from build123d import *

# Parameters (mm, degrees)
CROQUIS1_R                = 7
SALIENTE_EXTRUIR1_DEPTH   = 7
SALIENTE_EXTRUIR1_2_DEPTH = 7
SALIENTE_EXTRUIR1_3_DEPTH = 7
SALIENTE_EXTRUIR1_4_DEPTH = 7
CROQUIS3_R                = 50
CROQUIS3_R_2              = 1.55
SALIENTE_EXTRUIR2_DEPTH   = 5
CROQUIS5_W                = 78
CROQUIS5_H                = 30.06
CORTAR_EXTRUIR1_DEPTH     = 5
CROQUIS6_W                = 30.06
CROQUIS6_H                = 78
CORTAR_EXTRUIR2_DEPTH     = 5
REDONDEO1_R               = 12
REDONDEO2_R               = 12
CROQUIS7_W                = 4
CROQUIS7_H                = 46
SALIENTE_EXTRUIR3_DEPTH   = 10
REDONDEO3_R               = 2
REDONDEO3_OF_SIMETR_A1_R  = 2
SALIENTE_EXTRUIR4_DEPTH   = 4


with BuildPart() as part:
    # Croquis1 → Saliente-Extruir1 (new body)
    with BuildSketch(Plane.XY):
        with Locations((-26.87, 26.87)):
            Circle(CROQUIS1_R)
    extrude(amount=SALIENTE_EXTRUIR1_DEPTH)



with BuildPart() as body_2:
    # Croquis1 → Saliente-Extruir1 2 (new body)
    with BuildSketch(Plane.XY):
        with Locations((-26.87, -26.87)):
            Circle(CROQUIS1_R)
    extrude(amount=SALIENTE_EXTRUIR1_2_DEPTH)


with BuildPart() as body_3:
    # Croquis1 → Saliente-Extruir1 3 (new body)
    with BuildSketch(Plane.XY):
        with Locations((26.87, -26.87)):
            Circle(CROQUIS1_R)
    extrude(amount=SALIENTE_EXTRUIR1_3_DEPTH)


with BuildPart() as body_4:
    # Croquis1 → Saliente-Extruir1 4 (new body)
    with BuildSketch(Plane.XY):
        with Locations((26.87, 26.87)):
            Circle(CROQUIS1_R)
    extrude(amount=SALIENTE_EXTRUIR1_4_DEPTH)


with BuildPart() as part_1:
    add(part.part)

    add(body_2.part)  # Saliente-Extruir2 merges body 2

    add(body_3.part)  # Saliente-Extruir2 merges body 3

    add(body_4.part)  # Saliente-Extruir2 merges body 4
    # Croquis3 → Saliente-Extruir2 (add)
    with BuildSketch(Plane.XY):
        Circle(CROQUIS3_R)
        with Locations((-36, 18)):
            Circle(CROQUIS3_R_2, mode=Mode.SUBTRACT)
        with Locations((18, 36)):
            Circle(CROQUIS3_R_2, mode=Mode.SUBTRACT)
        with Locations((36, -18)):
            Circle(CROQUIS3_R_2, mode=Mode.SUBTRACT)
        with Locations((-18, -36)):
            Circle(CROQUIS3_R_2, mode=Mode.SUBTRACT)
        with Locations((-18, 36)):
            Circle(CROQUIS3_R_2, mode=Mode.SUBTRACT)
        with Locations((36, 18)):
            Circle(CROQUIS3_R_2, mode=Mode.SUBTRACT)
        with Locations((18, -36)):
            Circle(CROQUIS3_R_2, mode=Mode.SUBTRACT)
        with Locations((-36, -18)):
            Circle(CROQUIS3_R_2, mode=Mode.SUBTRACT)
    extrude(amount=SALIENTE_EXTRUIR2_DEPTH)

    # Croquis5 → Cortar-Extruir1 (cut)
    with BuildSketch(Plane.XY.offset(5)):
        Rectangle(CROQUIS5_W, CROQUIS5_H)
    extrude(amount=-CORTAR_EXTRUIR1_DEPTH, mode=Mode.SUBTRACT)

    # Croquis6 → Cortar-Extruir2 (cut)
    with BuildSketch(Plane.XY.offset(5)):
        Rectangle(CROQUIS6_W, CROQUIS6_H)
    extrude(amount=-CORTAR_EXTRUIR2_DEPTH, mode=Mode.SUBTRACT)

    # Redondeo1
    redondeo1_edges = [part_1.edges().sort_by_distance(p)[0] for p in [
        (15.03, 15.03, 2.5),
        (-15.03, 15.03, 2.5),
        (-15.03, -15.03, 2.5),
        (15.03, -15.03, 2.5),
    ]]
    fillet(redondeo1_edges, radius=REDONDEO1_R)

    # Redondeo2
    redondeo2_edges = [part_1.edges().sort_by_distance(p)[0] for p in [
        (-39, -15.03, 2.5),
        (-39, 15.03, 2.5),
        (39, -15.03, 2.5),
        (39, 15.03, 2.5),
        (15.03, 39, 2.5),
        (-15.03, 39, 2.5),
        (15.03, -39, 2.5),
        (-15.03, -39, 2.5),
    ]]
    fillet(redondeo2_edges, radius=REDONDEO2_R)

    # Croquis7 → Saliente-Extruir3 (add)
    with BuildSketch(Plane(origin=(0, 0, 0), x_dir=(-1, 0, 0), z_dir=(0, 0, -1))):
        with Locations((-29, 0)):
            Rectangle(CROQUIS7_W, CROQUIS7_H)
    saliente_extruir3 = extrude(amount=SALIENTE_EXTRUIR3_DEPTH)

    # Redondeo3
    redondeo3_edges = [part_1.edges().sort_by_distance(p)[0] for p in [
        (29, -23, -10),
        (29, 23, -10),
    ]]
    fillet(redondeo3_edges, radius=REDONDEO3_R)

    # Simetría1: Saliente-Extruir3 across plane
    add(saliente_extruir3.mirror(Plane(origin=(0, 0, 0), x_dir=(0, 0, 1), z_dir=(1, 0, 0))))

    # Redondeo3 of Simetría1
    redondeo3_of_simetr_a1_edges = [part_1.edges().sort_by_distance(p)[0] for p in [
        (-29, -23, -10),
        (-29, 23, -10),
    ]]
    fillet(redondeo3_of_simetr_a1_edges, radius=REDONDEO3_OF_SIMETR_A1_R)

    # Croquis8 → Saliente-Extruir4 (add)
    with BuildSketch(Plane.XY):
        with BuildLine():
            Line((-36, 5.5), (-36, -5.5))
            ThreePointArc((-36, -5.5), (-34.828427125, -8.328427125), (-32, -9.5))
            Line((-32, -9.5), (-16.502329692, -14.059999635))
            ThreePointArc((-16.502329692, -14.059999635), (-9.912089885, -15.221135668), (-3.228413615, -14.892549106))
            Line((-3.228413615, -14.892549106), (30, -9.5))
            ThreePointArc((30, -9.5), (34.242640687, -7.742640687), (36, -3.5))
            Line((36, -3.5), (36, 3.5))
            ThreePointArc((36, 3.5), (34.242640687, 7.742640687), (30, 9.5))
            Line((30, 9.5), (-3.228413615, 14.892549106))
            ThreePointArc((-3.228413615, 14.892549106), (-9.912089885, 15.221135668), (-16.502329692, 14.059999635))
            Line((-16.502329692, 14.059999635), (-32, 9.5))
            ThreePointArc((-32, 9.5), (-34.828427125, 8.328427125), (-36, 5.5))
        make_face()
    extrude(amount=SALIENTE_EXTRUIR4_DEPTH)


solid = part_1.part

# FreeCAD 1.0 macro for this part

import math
import FreeCAD as App
import Part
import Sketcher
Q = App.Units.Quantity


def edges_at(feature, points):
    """Names of the edges that pass closest to the given points."""
    edges = feature.Shape.Edges
    near = lambda p: min(range(len(edges)), key=lambda i: edges[i].distToShape(Part.Vertex(*p))[0])
    return sorted({f"Edge{near(p) + 1}" for p in points})


def add_polygon(sketch, points):
    """Adds a closed chain of lines whose ends are joined by coincident constraints."""
    first, n = sketch.GeometryCount, len(points)
    for a, b in zip(points, points[1:] + points[:1]):
        sketch.addGeometry(Part.LineSegment(App.Vector(*a, 0), App.Vector(*b, 0)), False)
    for i in range(n):
        sketch.addConstraint(Sketcher.Constraint("Coincident", first + i, 2, first + (i + 1) % n, 1))

doc = App.newDocument("Part")
params = doc.addObject("Spreadsheet::Sheet", "Params")
for row, (alias, value) in enumerate([
    ("sketch1_diameter", "14 mm"),
    ("pad1_length", "7 mm"),
    ("sketch2_diameter", "14 mm"),
    ("pad2_length", "7 mm"),
    ("sketch3_diameter", "14 mm"),
    ("pad3_length", "7 mm"),
    ("sketch4_diameter", "14 mm"),
    ("pad4_length", "7 mm"),
    ("sketch5_diameter", "100 mm"),
    ("sketch5_diameter2", "3.1 mm"),
    ("pad5_length", "5 mm"),
    ("sketch6_width", "78 mm"),
    ("sketch6_height", "30.06 mm"),
    ("pocket1_length", "5 mm"),
    ("sketch7_height", "78 mm"),
    ("sketch7_width", "30.06 mm"),
    ("pocket2_length", "5 mm"),
    ("fillet_radius", "12 mm"),
    ("fillet2_radius", "12 mm"),
    ("sketch8_width", "4 mm"),
    ("sketch8_height", "46 mm"),
    ("pad6_length", "10 mm"),
    ("fillet3_radius", "2 mm"),
    ("fillet4_radius", "2 mm"),
    ("sketch9_radius", "4 mm"),
    ("sketch9_radius2", "30 mm"),
    ("sketch9_radius3", "6 mm"),
    ("sketch9_height", "11 mm"),
    ("pad7_length", "4 mm"),
], start=1):
    params.set(f"A{row}", alias)
    params.set(f"B{row}", "=" + value)
    params.setAlias(f"B{row}", alias)

body = doc.addObject("PartDesign::Body", "Body")

sketch1 = body.newObject("Sketcher::SketchObject", "Sketch")
sketch1.AttachmentSupport = (doc.getObject("XY_Plane"), [""])
sketch1.MapMode = "FlatFace"
sketch1.addGeometry(Part.Circle(App.Vector(-26.87, 26.87, 0), App.Vector(0, 0, 1), 7), False)
sketch1.addConstraint(Sketcher.Constraint("Diameter", 0, Q("14 mm")))
sketch1.addConstraint(Sketcher.Constraint("DistanceX", 0, 3, -1, 1, Q("26.87 mm")))
sketch1.addConstraint(Sketcher.Constraint("DistanceY", -1, 1, 0, 3, Q("26.87 mm")))
sketch1.setExpression("Constraints[0]", "Params.sketch1_diameter")
pad1 = body.newObject("PartDesign::Pad", "Pad")
pad1.Profile = sketch1
pad1.setExpression("Length", "Params.pad1_length")
body2 = doc.addObject("PartDesign::Body", "Body001")

sketch2 = body2.newObject("Sketcher::SketchObject", "Sketch001")
sketch2.AttachmentSupport = (doc.getObject("XY_Plane001"), [""])
sketch2.MapMode = "FlatFace"
sketch2.addGeometry(Part.Circle(App.Vector(-26.87, -26.87, 0), App.Vector(0, 0, 1), 7), False)
sketch2.addConstraint(Sketcher.Constraint("Diameter", 0, Q("14 mm")))
sketch2.addConstraint(Sketcher.Constraint("DistanceX", 0, 3, -1, 1, Q("26.87 mm")))
sketch2.addConstraint(Sketcher.Constraint("DistanceY", 0, 3, -1, 1, Q("26.87 mm")))
sketch2.setExpression("Constraints[0]", "Params.sketch2_diameter")
pad2 = body2.newObject("PartDesign::Pad", "Pad001")
pad2.Profile = sketch2
pad2.setExpression("Length", "Params.pad2_length")
body3 = doc.addObject("PartDesign::Body", "Body002")

sketch3 = body3.newObject("Sketcher::SketchObject", "Sketch002")
sketch3.AttachmentSupport = (doc.getObject("XY_Plane002"), [""])
sketch3.MapMode = "FlatFace"
sketch3.addGeometry(Part.Circle(App.Vector(26.87, -26.87, 0), App.Vector(0, 0, 1), 7), False)
sketch3.addConstraint(Sketcher.Constraint("Diameter", 0, Q("14 mm")))
sketch3.addConstraint(Sketcher.Constraint("DistanceX", -1, 1, 0, 3, Q("26.87 mm")))
sketch3.addConstraint(Sketcher.Constraint("DistanceY", 0, 3, -1, 1, Q("26.87 mm")))
sketch3.setExpression("Constraints[0]", "Params.sketch3_diameter")
pad3 = body3.newObject("PartDesign::Pad", "Pad002")
pad3.Profile = sketch3
pad3.setExpression("Length", "Params.pad3_length")
body4 = doc.addObject("PartDesign::Body", "Body003")

sketch4 = body4.newObject("Sketcher::SketchObject", "Sketch003")
sketch4.AttachmentSupport = (doc.getObject("XY_Plane003"), [""])
sketch4.MapMode = "FlatFace"
sketch4.addGeometry(Part.Circle(App.Vector(26.87, 26.87, 0), App.Vector(0, 0, 1), 7), False)
sketch4.addConstraint(Sketcher.Constraint("Diameter", 0, Q("14 mm")))
sketch4.addConstraint(Sketcher.Constraint("DistanceX", -1, 1, 0, 3, Q("26.87 mm")))
sketch4.addConstraint(Sketcher.Constraint("DistanceY", -1, 1, 0, 3, Q("26.87 mm")))
sketch4.setExpression("Constraints[0]", "Params.sketch4_diameter")
pad4 = body4.newObject("PartDesign::Pad", "Pad003")
pad4.Profile = sketch4
pad4.setExpression("Length", "Params.pad4_length")
body.AllowCompound = True
doc.recompute()

boolean = body.newObject("PartDesign::Boolean", "Boolean")
boolean.Type = "Fuse"
boolean.addObjects([body2])
doc.recompute()

boolean2 = body.newObject("PartDesign::Boolean", "Boolean001")
boolean2.Type = "Fuse"
boolean2.addObjects([body3])
doc.recompute()

boolean3 = body.newObject("PartDesign::Boolean", "Boolean002")
boolean3.Type = "Fuse"
boolean3.addObjects([body4])

sketch5 = body.newObject("Sketcher::SketchObject", "Sketch004")
sketch5.AttachmentSupport = (doc.getObject("XY_Plane"), [""])
sketch5.MapMode = "FlatFace"
sketch5.addGeometry(Part.Circle(App.Vector(0, 0, 0), App.Vector(0, 0, 1), 50), False)
sketch5.addGeometry(Part.Circle(App.Vector(-18, -36, 0), App.Vector(0, 0, 1), 1.55), False)
sketch5.addGeometry(Part.Circle(App.Vector(-36, -18, 0), App.Vector(0, 0, 1), 1.55), False)
sketch5.addGeometry(Part.Circle(App.Vector(18, -36, 0), App.Vector(0, 0, 1), 1.55), False)
sketch5.addGeometry(Part.Circle(App.Vector(36, -18, 0), App.Vector(0, 0, 1), 1.55), False)
sketch5.addGeometry(Part.Circle(App.Vector(-36, 18, 0), App.Vector(0, 0, 1), 1.55), False)
sketch5.addGeometry(Part.Circle(App.Vector(-18, 36, 0), App.Vector(0, 0, 1), 1.55), False)
sketch5.addGeometry(Part.Circle(App.Vector(36, 18, 0), App.Vector(0, 0, 1), 1.55), False)
sketch5.addGeometry(Part.Circle(App.Vector(18, 36, 0), App.Vector(0, 0, 1), 1.55), False)
sketch5.addConstraint(Sketcher.Constraint("Coincident", 0, 3, -1, 1))
sketch5.addConstraint(Sketcher.Constraint("Equal", 1, 2))
sketch5.addConstraint(Sketcher.Constraint("Equal", 2, 3))
sketch5.addConstraint(Sketcher.Constraint("Equal", 3, 4))
sketch5.addConstraint(Sketcher.Constraint("Equal", 4, 5))
sketch5.addConstraint(Sketcher.Constraint("Equal", 5, 6))
sketch5.addConstraint(Sketcher.Constraint("Equal", 6, 7))
sketch5.addConstraint(Sketcher.Constraint("Equal", 7, 8))
sketch5.addConstraint(Sketcher.Constraint("Symmetric", 4, 3, 5, 3, -1, 1))
sketch5.addConstraint(Sketcher.Constraint("Symmetric", 3, 3, 6, 3, -1, 1))
sketch5.addConstraint(Sketcher.Constraint("Symmetric", 2, 3, 7, 3, -1, 1))
sketch5.addConstraint(Sketcher.Constraint("Symmetric", 1, 3, 8, 3, -1, 1))
sketch5.addConstraint(Sketcher.Constraint("Symmetric", 1, 3, 3, 3, -2))
sketch5.addConstraint(Sketcher.Constraint("Symmetric", 2, 3, 4, 3, -2))
sketch5.addConstraint(Sketcher.Constraint("Diameter", 0, Q("100 mm")))
sketch5.addConstraint(Sketcher.Constraint("Diameter", 1, Q("3.1 mm")))
sketch5.addConstraint(Sketcher.Constraint("DistanceX", 1, 3, -1, 1, Q("18 mm")))
sketch5.addConstraint(Sketcher.Constraint("DistanceY", 1, 3, -1, 1, Q("36 mm")))
sketch5.addConstraint(Sketcher.Constraint("DistanceX", 2, 3, -1, 1, Q("36 mm")))
sketch5.addConstraint(Sketcher.Constraint("DistanceY", 2, 3, -1, 1, Q("18 mm")))
sketch5.setExpression("Constraints[14]", "Params.sketch5_diameter")
sketch5.setExpression("Constraints[15]", "Params.sketch5_diameter2")
pad5 = body.newObject("PartDesign::Pad", "Pad004")
pad5.Profile = sketch5
pad5.setExpression("Length", "Params.pad5_length")

sketch6 = body.newObject("Sketcher::SketchObject", "Sketch005")
sketch6.AttachmentSupport = (doc.getObject("XY_Plane"), [""])
sketch6.MapMode = "FlatFace"
sketch6.AttachmentOffset = App.Placement(App.Vector(0, 0, 5), App.Rotation())
add_polygon(sketch6, [(-39, 15.03), (-39, -15.03), (39, -15.03), (39, 15.03)])
sketch6.addConstraint(Sketcher.Constraint("Vertical", 0))
sketch6.addConstraint(Sketcher.Constraint("Horizontal", 1))
sketch6.addConstraint(Sketcher.Constraint("Vertical", 2))
sketch6.addConstraint(Sketcher.Constraint("Horizontal", 3))
sketch6.addConstraint(Sketcher.Constraint("Symmetric", 0, 2, 2, 2, -1, 1))
sketch6.addConstraint(Sketcher.Constraint("DistanceX", 1, 1, 1, 2, Q("78 mm")))
sketch6.addConstraint(Sketcher.Constraint("DistanceY", 0, 2, 0, 1, Q("30.06 mm")))
sketch6.setExpression("Constraints[9]", "Params.sketch6_width")
sketch6.setExpression("Constraints[10]", "Params.sketch6_height")
pocket1 = body.newObject("PartDesign::Pocket", "Pocket")
pocket1.Profile = sketch6
pocket1.setExpression("Length", "Params.pocket1_length")

sketch7 = body.newObject("Sketcher::SketchObject", "Sketch006")
sketch7.AttachmentSupport = (doc.getObject("XY_Plane"), [""])
sketch7.MapMode = "FlatFace"
sketch7.AttachmentOffset = App.Placement(App.Vector(0, 0, 5), App.Rotation())
add_polygon(sketch7, [(-15.03, 39), (-15.03, -39), (15.03, -39), (15.03, 39)])
sketch7.addConstraint(Sketcher.Constraint("Vertical", 0))
sketch7.addConstraint(Sketcher.Constraint("Horizontal", 1))
sketch7.addConstraint(Sketcher.Constraint("Vertical", 2))
sketch7.addConstraint(Sketcher.Constraint("Horizontal", 3))
sketch7.addConstraint(Sketcher.Constraint("Symmetric", 0, 2, 2, 2, -1, 1))
sketch7.addConstraint(Sketcher.Constraint("DistanceY", 0, 2, 0, 1, Q("78 mm")))
sketch7.addConstraint(Sketcher.Constraint("DistanceX", 1, 1, 1, 2, Q("30.06 mm")))
sketch7.setExpression("Constraints[9]", "Params.sketch7_height")
sketch7.setExpression("Constraints[10]", "Params.sketch7_width")
pocket2 = body.newObject("PartDesign::Pocket", "Pocket001")
pocket2.Profile = sketch7
pocket2.setExpression("Length", "Params.pocket2_length")
doc.recompute()

fillet = body.newObject("PartDesign::Fillet", "Fillet")
fillet.Base = (pocket2, edges_at(pocket2, [
    (15.03, 15.03, 2.5),
    (-15.03, 15.03, 2.5),
    (-15.03, -15.03, 2.5),
    (15.03, -15.03, 2.5),
]))
fillet.setExpression("Radius", "Params.fillet_radius")
doc.recompute()

fillet2 = body.newObject("PartDesign::Fillet", "Fillet001")
fillet2.Base = (fillet, edges_at(fillet, [
    (-39, -15.03, 2.5),
    (-39, 15.03, 2.5),
    (39, -15.03, 2.5),
    (39, 15.03, 2.5),
    (15.03, 39, 2.5),
    (-15.03, 39, 2.5),
    (15.03, -39, 2.5),
    (-15.03, -39, 2.5),
]))
fillet2.setExpression("Radius", "Params.fillet2_radius")

sketch8 = body.newObject("Sketcher::SketchObject", "Sketch007")
sketch8.AttachmentSupport = (doc.getObject("XY_Plane"), [""])
sketch8.MapMode = "FlatFace"
add_polygon(sketch8, [(31, 23), (31, -23), (27, -23), (27, 23)])
sketch8.addConstraint(Sketcher.Constraint("Vertical", 0))
sketch8.addConstraint(Sketcher.Constraint("Horizontal", 1))
sketch8.addConstraint(Sketcher.Constraint("Vertical", 2))
sketch8.addConstraint(Sketcher.Constraint("Horizontal", 3))
sketch8.addConstraint(Sketcher.Constraint("DistanceX", 1, 2, 1, 1, Q("4 mm")))
sketch8.addConstraint(Sketcher.Constraint("DistanceY", 0, 2, 0, 1, Q("46 mm")))
sketch8.addConstraint(Sketcher.Constraint("DistanceX", -1, 1, 0, 2, Q("31 mm")))
sketch8.addConstraint(Sketcher.Constraint("DistanceY", 0, 2, -1, 1, Q("23 mm")))
sketch8.setExpression("Constraints[8]", "Params.sketch8_width")
sketch8.setExpression("Constraints[9]", "Params.sketch8_height")
pad6 = body.newObject("PartDesign::Pad", "Pad005")
pad6.Profile = sketch8
pad6.setExpression("Length", "Params.pad6_length")
pad6.Reversed = True
doc.recompute()

fillet3 = body.newObject("PartDesign::Fillet", "Fillet002")
fillet3.Base = (pad6, edges_at(pad6, [(29, -23, -10), (29, 23, -10)]))
fillet3.setExpression("Radius", "Params.fillet3_radius")
doc.recompute()

mirrored = body.newObject("PartDesign::Mirrored", "Mirrored")
mirrored.Originals = [pad6]
mirrored.MirrorPlane = (doc.getObject("YZ_Plane"), [""])
body.Tip = mirrored
doc.recompute()

fillet4 = body.newObject("PartDesign::Fillet", "Fillet003")
fillet4.Base = (mirrored, edges_at(mirrored, [(-29, -23, -10), (-29, 23, -10)]))
fillet4.setExpression("Radius", "Params.fillet4_radius")

sketch9 = body.newObject("Sketcher::SketchObject", "Sketch008")
sketch9.AttachmentSupport = (doc.getObject("XY_Plane"), [""])
sketch9.MapMode = "FlatFace"
sketch9.addGeometry(Part.LineSegment(App.Vector(-36, 5.5, 0), App.Vector(-36, -5.5, 0)), False)
sketch9.addGeometry(Part.ArcOfCircle(Part.Circle(App.Vector(-32, -5.5, 0), App.Vector(0, 0, 1), 4), math.radians(180), math.radians(270)), False)
sketch9.addGeometry(Part.LineSegment(App.Vector(-32, -9.5, 0), App.Vector(-16.50233, -14.06, 0)), False)
sketch9.addGeometry(Part.ArcOfCircle(Part.Circle(App.Vector(-8.034159, 14.72003, 0), App.Vector(0, 0, 1), 30), math.radians(-106.395874), math.radians(-80.781988)), False)
sketch9.addGeometry(Part.LineSegment(App.Vector(-3.228414, -14.892549, 0), App.Vector(30, -9.5, 0)), False)
sketch9.addGeometry(Part.ArcOfCircle(Part.Circle(App.Vector(30, -3.5, 0), App.Vector(0, 0, 1), 6), math.radians(-90), math.radians(0)), False)
sketch9.addGeometry(Part.LineSegment(App.Vector(36, -3.5, 0), App.Vector(36, 3.5, 0)), False)
sketch9.addGeometry(Part.ArcOfCircle(Part.Circle(App.Vector(30, 3.5, 0), App.Vector(0, 0, 1), 6), math.radians(0), math.radians(90)), False)
sketch9.addGeometry(Part.LineSegment(App.Vector(30, 9.5, 0), App.Vector(-3.228414, 14.892549, 0)), False)
sketch9.addGeometry(Part.ArcOfCircle(Part.Circle(App.Vector(-8.034159, -14.72003, 0), App.Vector(0, 0, 1), 30), math.radians(80.781988), math.radians(106.395874)), False)
sketch9.addGeometry(Part.LineSegment(App.Vector(-16.50233, 14.06, 0), App.Vector(-32, 9.5, 0)), False)
sketch9.addGeometry(Part.ArcOfCircle(Part.Circle(App.Vector(-32, 5.5, 0), App.Vector(0, 0, 1), 4), math.radians(90), math.radians(180)), False)
sketch9.addConstraint(Sketcher.Constraint("Tangent", 0, 2, 1, 1))
sketch9.addConstraint(Sketcher.Constraint("Coincident", 1, 2, 2, 1))
sketch9.addConstraint(Sketcher.Constraint("Tangent", 2, 2, 3, 1))
sketch9.addConstraint(Sketcher.Constraint("Tangent", 3, 2, 4, 1))
sketch9.addConstraint(Sketcher.Constraint("Coincident", 4, 2, 5, 1))
sketch9.addConstraint(Sketcher.Constraint("Tangent", 5, 2, 6, 1))
sketch9.addConstraint(Sketcher.Constraint("Tangent", 6, 2, 7, 1))
sketch9.addConstraint(Sketcher.Constraint("Coincident", 7, 2, 8, 1))
sketch9.addConstraint(Sketcher.Constraint("Tangent", 8, 2, 9, 1))
sketch9.addConstraint(Sketcher.Constraint("Tangent", 9, 2, 10, 1))
sketch9.addConstraint(Sketcher.Constraint("Coincident", 10, 2, 11, 1))
sketch9.addConstraint(Sketcher.Constraint("Tangent", 11, 2, 0, 1))
sketch9.addConstraint(Sketcher.Constraint("Vertical", 0))
sketch9.addConstraint(Sketcher.Constraint("Vertical", 6))
sketch9.addConstraint(Sketcher.Constraint("Equal", 5, 7))
sketch9.addConstraint(Sketcher.Constraint("Equal", 3, 9))
sketch9.addConstraint(Sketcher.Constraint("Equal", 1, 11))
sketch9.addConstraint(Sketcher.Constraint("Symmetric", 3, 3, 9, 3, -1))
sketch9.addConstraint(Sketcher.Constraint("Symmetric", 4, 2, 7, 2, -1))
sketch9.addConstraint(Sketcher.Constraint("Symmetric", 1, 2, 10, 2, -1))
sketch9.addConstraint(Sketcher.Constraint("Horizontal", 1, 2, 4, 2))
sketch9.addConstraint(Sketcher.Constraint("Vertical", 11, 3, 1, 2))
sketch9.addConstraint(Sketcher.Constraint("Vertical", 7, 3, 4, 2))
sketch9.addConstraint(Sketcher.Constraint("Radius", 1, Q("4 mm")))
sketch9.addConstraint(Sketcher.Constraint("Radius", 3, Q("30 mm")))
sketch9.addConstraint(Sketcher.Constraint("Radius", 5, Q("6 mm")))
sketch9.addConstraint(Sketcher.Constraint("DistanceY", 0, 2, 0, 1, Q("11 mm")))
sketch9.addConstraint(Sketcher.Constraint("DistanceX", 1, 3, -1, 1, Q("32 mm")))
sketch9.addConstraint(Sketcher.Constraint("DistanceX", -1, 1, 5, 3, Q("30 mm")))
sketch9.addConstraint(Sketcher.Constraint("DistanceY", 2, 2, -1, 1, Q("14.06 mm")))
sketch9.addConstraint(Sketcher.Constraint("DistanceY", 3, 2, 8, 2, Q("29.785098 mm")))
sketch9.setExpression("Constraints[23]", "Params.sketch9_radius")
sketch9.setExpression("Constraints[24]", "Params.sketch9_radius2")
sketch9.setExpression("Constraints[25]", "Params.sketch9_radius3")
sketch9.setExpression("Constraints[26]", "Params.sketch9_height")
pad7 = body.newObject("PartDesign::Pad", "Pad006")
pad7.Profile = sketch9
pad7.setExpression("Length", "Params.pad7_length")

doc.recompute()
